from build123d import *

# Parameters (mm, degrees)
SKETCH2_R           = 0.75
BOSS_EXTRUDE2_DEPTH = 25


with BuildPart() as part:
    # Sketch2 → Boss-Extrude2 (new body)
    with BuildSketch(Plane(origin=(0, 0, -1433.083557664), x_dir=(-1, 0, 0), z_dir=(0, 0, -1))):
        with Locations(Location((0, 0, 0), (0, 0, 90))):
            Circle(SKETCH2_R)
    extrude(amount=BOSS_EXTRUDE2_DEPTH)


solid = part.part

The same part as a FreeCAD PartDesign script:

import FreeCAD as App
import Part
import Sketcher

V = App.Vector
Q = App.Units.Quantity

doc = App.newDocument("Part")
body = doc.addObject("PartDesign::Body", "Body")

sketch1 = body.newObject("Sketcher::SketchObject", "Sketch")
sketch1.AttachmentSupport = (doc.getObject("XY_Plane"), [""])
sketch1.MapMode = "FlatFace"
sketch1.AttachmentOffset = App.Placement(V(0, 0, -1433.083558), App.Rotation())
sketch1.addGeometry(Part.Circle(V(0, 0, 0), V(0, 0, 1), 0.75), False)
sketch1.addConstraint(Sketcher.Constraint("Coincident", 0, 3, -1, 1))
sketch1.addConstraint(Sketcher.Constraint("Diameter", 0, Q("1.5 mm")))
pad1 = body.newObject("PartDesign::Pad", "Pad")
pad1.Profile = sketch1
pad1.Length = 25
pad1.Reversed = True

doc.recompute()
